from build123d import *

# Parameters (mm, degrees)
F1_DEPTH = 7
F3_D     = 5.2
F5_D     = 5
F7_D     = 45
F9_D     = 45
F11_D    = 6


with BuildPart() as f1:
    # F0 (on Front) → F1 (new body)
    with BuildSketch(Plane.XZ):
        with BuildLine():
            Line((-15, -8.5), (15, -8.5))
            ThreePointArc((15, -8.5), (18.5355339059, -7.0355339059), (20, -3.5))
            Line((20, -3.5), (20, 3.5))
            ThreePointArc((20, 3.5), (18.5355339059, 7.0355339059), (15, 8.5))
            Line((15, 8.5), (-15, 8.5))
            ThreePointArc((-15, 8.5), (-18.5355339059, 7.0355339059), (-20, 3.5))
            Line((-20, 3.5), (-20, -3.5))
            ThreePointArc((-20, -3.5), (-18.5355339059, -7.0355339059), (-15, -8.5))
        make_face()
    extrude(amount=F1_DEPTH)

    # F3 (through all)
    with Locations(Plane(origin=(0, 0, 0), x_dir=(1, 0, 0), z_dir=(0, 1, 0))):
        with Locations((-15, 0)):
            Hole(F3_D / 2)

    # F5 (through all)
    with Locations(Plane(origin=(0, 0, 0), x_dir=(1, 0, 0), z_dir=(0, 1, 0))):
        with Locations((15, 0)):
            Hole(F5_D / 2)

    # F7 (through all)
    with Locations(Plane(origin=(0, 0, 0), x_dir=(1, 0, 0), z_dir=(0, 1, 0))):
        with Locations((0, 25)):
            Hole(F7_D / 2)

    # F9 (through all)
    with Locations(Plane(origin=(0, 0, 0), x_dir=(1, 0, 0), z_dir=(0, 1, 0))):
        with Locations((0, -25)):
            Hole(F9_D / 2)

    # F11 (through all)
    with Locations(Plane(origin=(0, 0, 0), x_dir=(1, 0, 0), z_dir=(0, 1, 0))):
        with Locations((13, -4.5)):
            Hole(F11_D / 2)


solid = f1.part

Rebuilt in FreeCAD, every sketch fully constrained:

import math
import FreeCAD as App
import Part
import Sketcher
from FreeCAD import Vector

doc = App.newDocument("Part")
params = doc.addObject("Spreadsheet::Sheet", "Params")
for row, (alias, value) in enumerate([
    ("sketch1_radius", "5 mm"),
    ("sketch1_width", "30 mm"),
    ("sketch1_height", "7 mm"),
    ("pad1_length", "7 mm"),
    ("sketch2_diameter", "5.2 mm"),
    ("hole_diameter", "5.2 mm"),
    ("sketch3_diameter", "5 mm"),
    ("hole2_diameter", "5 mm"),
    ("sketch4_diameter", "45 mm"),
    ("hole3_diameter", "45 mm"),
    ("sketch5_diameter", "45 mm"),
    ("hole4_diameter", "45 mm"),
    ("sketch6_diameter", "6 mm"),
    ("hole5_diameter", "6 mm"),
], start=1):
    params.set(f"A{row}", alias)
    params.set(f"B{row}", "=" + value)
    params.setAlias(f"B{row}", alias)

body = doc.addObject("PartDesign::Body", "Body")

sketch1 = body.newObject("Sketcher::SketchObject", "Sketch")
sketch1.AttachmentSupport = (doc.getObject("XZ_Plane"), [""])
sketch1.MapMode = "FlatFace"
sketch1.addGeometry(Part.LineSegment(Vector(-15, -8, 0), Vector(15, -8, 0)), False)
sketch1.addGeometry(Part.ArcOfCircle(Part.Circle(Vector(15, -4, 0), Vector(0, 0, 1), 5), math.radians(-90), math.radians(0)), False)
sketch1.addGeometry(Part.LineSegment(Vector(20, -4, 0), Vector(20, 4, 0)), False)
sketch1.addGeometry(Part.ArcOfCircle(Part.Circle(Vector(15, 4, 0), Vector(0, 0, 1), 5), math.radians(0), math.radians(90)), False)
sketch1.addGeometry(Part.LineSegment(Vector(15, 8, 0), Vector(-15, 8, 0)), False)
sketch1.addGeometry(Part.ArcOfCircle(Part.Circle(Vector(-15, 4, 0), Vector(0, 0, 1), 5), math.radians(90), math.radians(180)), False)
sketch1.addGeometry(Part.LineSegment(Vector(-20, 4, 0), Vector(-20, -4, 0)), False)
sketch1.addGeometry(Part.ArcOfCircle(Part.Circle(Vector(-15, -4, 0), Vector(0, 0, 1), 5), math.radians(180), math.radians(270)), False)
sketch1.addConstraint(Sketcher.Constraint("Tangent", 0, 2, 1, 1))
sketch1.addConstraint(Sketcher.Constraint("Tangent", 1, 2, 2, 1))
sketch1.addConstraint(Sketcher.Constraint("Tangent", 2, 2, 3, 1))
sketch1.addConstraint(Sketcher.Constraint("Tangent", 3, 2, 4, 1))
sketch1.addConstraint(Sketcher.Constraint("Tangent", 4, 2, 5, 1))
sketch1.addConstraint(Sketcher.Constraint("Tangent", 5, 2, 6, 1))
sketch1.addConstraint(Sketcher.Constraint("Tangent", 6, 2, 7, 1))
sketch1.addConstraint(Sketcher.Constraint("Tangent", 7, 2, 0, 1))
sketch1.addConstraint(Sketcher.Constraint("Horizontal", 0))
sketch1.addConstraint(Sketcher.Constraint("Vertical", 2))
sketch1.addConstraint(Sketcher.Constraint("Horizontal", 4))
sketch1.addConstraint(Sketcher.Constraint("Vertical", 6))
sketch1.addConstraint(Sketcher.Constraint("Equal", 1, 3))
sketch1.addConstraint(Sketcher.Constraint("Equal", 3, 5))
sketch1.addConstraint(Sketcher.Constraint("Equal", 5, 7))
sketch1.addConstraint(Sketcher.Constraint("Symmetric", 1, 3, 5, 3, -1, 1))
sketch1.addConstraint(Sketcher.Constraint("Radius", 1, 5.0))
sketch1.addConstraint(Sketcher.Constraint("DistanceX", 0, 1, 0, 2, 30.0))
sketch1.addConstraint(Sketcher.Constraint("DistanceY", 2, 1, 2, 2, 7.0))
sketch1.setExpression("Constraints[16]", "Params.sketch1_radius")
sketch1.setExpression("Constraints[17]", "Params.sketch1_width")
sketch1.setExpression("Constraints[18]", "Params.sketch1_height")
pad1 = body.newObject("PartDesign::Pad", "Pad")
pad1.Profile = sketch1
pad1.setExpression("Length", "Params.pad1_length")

sketch2 = body.newObject("Sketcher::SketchObject", "Sketch001")
sketch2.AttachmentSupport = (doc.getObject("XZ_Plane"), [""])
sketch2.MapMode = "FlatFace"
sketch2.addGeometry(Part.Circle(Vector(-15, 0, 0), Vector(0, 0, 1), 2.6), False)
sketch2.addConstraint(Sketcher.Constraint("PointOnObject", 0, 3, -1))
sketch2.addConstraint(Sketcher.Constraint("Diameter", 0, 5.2))
sketch2.addConstraint(Sketcher.Constraint("DistanceX", 0, 3, -1, 1, 15.0))
sketch2.setExpression("Constraints[1]", "Params.sketch2_diameter")
doc.recompute()
hole = body.newObject("PartDesign::Hole", "Hole")
hole.Profile = sketch2
hole.ThreadType = "None"
hole.setExpression("Diameter", "Params.hole_diameter")
hole.DepthType = "ThroughAll"
hole.Reversed = True

sketch3 = body.newObject("Sketcher::SketchObject", "Sketch002")
sketch3.AttachmentSupport = (doc.getObject("XZ_Plane"), [""])
sketch3.MapMode = "FlatFace"
sketch3.addGeometry(Part.Circle(Vector(15, 0, 0), Vector(0, 0, 1), 2.5), False)
sketch3.addConstraint(Sketcher.Constraint("PointOnObject", 0, 3, -1))
sketch3.addConstraint(Sketcher.Constraint("Diameter", 0, 5.0))
sketch3.addConstraint(Sketcher.Constraint("DistanceX", -1, 1, 0, 3, 15.0))
sketch3.setExpression("Constraints[1]", "Params.sketch3_diameter")
doc.recompute()
hole2 = body.newObject("PartDesign::Hole", "Hole001")
hole2.Profile = sketch3
hole2.ThreadType = "None"
hole2.setExpression("Diameter", "Params.hole2_diameter")
hole2.DepthType = "ThroughAll"
hole2.Reversed = True

sketch4 = body.newObject("Sketcher::SketchObject", "Sketch003")
sketch4.AttachmentSupport = (doc.getObject("XZ_Plane"), [""])
sketch4.MapMode = "FlatFace"
sketch4.addGeometry(Part.Circle(Vector(0, -25, 0), Vector(0, 0, 1), 22), False)
sketch4.addConstraint(Sketcher.Constraint("PointOnObject", 0, 3, -2))
sketch4.addConstraint(Sketcher.Constraint("Diameter", 0, 45.0))
sketch4.addConstraint(Sketcher.Constraint("DistanceY", 0, 3, -1, 1, 25.0))
sketch4.setExpression("Constraints[1]", "Params.sketch4_diameter")
doc.recompute()
hole3 = body.newObject("PartDesign::Hole", "Hole002")
hole3.Profile = sketch4
hole3.ThreadType = "None"
hole3.setExpression("Diameter", "Params.hole3_diameter")
hole3.DepthType = "ThroughAll"
hole3.Reversed = True

sketch5 = body.newObject("Sketcher::SketchObject", "Sketch004")
sketch5.AttachmentSupport = (doc.getObject("XZ_Plane"), [""])
sketch5.MapMode = "FlatFace"
sketch5.addGeometry(Part.Circle(Vector(0, 25, 0), Vector(0, 0, 1), 22), False)
sketch5.addConstraint(Sketcher.Constraint("PointOnObject", 0, 3, -2))
sketch5.addConstraint(Sketcher.Constraint("Diameter", 0, 45.0))
sketch5.addConstraint(Sketcher.Constraint("DistanceY", -1, 1, 0, 3, 25.0))
sketch5.setExpression("Constraints[1]", "Params.sketch5_diameter")
doc.recompute()
hole4 = body.newObject("PartDesign::Hole", "Hole003")
hole4.Profile = sketch5
hole4.ThreadType = "None"
hole4.setExpression("Diameter", "Params.hole4_diameter")
hole4.DepthType = "ThroughAll"
hole4.Reversed = True

sketch6 = body.newObject("Sketcher::SketchObject", "Sketch005")
sketch6.AttachmentSupport = (doc.getObject("XZ_Plane"), [""])
sketch6.MapMode = "FlatFace"
sketch6.addGeometry(Part.Circle(Vector(13, 4.5, 0), Vector(0, 0, 1), 3), False)
sketch6.addConstraint(Sketcher.Constraint("Diameter", 0, 6.0))
sketch6.addConstraint(Sketcher.Constraint("DistanceX", -1, 1, 0, 3, 13.0))
sketch6.addConstraint(Sketcher.Constraint("DistanceY", -1, 1, 0, 3, 4.5))
sketch6.setExpression("Constraints[0]", "Params.sketch6_diameter")
doc.recompute()
hole5 = body.newObject("PartDesign::Hole", "Hole004")
hole5.Profile = sketch6
hole5.ThreadType = "None"
hole5.setExpression("Diameter", "Params.hole5_diameter")
hole5.DepthType = "ThroughAll"
hole5.Reversed = True

doc.recompute()
